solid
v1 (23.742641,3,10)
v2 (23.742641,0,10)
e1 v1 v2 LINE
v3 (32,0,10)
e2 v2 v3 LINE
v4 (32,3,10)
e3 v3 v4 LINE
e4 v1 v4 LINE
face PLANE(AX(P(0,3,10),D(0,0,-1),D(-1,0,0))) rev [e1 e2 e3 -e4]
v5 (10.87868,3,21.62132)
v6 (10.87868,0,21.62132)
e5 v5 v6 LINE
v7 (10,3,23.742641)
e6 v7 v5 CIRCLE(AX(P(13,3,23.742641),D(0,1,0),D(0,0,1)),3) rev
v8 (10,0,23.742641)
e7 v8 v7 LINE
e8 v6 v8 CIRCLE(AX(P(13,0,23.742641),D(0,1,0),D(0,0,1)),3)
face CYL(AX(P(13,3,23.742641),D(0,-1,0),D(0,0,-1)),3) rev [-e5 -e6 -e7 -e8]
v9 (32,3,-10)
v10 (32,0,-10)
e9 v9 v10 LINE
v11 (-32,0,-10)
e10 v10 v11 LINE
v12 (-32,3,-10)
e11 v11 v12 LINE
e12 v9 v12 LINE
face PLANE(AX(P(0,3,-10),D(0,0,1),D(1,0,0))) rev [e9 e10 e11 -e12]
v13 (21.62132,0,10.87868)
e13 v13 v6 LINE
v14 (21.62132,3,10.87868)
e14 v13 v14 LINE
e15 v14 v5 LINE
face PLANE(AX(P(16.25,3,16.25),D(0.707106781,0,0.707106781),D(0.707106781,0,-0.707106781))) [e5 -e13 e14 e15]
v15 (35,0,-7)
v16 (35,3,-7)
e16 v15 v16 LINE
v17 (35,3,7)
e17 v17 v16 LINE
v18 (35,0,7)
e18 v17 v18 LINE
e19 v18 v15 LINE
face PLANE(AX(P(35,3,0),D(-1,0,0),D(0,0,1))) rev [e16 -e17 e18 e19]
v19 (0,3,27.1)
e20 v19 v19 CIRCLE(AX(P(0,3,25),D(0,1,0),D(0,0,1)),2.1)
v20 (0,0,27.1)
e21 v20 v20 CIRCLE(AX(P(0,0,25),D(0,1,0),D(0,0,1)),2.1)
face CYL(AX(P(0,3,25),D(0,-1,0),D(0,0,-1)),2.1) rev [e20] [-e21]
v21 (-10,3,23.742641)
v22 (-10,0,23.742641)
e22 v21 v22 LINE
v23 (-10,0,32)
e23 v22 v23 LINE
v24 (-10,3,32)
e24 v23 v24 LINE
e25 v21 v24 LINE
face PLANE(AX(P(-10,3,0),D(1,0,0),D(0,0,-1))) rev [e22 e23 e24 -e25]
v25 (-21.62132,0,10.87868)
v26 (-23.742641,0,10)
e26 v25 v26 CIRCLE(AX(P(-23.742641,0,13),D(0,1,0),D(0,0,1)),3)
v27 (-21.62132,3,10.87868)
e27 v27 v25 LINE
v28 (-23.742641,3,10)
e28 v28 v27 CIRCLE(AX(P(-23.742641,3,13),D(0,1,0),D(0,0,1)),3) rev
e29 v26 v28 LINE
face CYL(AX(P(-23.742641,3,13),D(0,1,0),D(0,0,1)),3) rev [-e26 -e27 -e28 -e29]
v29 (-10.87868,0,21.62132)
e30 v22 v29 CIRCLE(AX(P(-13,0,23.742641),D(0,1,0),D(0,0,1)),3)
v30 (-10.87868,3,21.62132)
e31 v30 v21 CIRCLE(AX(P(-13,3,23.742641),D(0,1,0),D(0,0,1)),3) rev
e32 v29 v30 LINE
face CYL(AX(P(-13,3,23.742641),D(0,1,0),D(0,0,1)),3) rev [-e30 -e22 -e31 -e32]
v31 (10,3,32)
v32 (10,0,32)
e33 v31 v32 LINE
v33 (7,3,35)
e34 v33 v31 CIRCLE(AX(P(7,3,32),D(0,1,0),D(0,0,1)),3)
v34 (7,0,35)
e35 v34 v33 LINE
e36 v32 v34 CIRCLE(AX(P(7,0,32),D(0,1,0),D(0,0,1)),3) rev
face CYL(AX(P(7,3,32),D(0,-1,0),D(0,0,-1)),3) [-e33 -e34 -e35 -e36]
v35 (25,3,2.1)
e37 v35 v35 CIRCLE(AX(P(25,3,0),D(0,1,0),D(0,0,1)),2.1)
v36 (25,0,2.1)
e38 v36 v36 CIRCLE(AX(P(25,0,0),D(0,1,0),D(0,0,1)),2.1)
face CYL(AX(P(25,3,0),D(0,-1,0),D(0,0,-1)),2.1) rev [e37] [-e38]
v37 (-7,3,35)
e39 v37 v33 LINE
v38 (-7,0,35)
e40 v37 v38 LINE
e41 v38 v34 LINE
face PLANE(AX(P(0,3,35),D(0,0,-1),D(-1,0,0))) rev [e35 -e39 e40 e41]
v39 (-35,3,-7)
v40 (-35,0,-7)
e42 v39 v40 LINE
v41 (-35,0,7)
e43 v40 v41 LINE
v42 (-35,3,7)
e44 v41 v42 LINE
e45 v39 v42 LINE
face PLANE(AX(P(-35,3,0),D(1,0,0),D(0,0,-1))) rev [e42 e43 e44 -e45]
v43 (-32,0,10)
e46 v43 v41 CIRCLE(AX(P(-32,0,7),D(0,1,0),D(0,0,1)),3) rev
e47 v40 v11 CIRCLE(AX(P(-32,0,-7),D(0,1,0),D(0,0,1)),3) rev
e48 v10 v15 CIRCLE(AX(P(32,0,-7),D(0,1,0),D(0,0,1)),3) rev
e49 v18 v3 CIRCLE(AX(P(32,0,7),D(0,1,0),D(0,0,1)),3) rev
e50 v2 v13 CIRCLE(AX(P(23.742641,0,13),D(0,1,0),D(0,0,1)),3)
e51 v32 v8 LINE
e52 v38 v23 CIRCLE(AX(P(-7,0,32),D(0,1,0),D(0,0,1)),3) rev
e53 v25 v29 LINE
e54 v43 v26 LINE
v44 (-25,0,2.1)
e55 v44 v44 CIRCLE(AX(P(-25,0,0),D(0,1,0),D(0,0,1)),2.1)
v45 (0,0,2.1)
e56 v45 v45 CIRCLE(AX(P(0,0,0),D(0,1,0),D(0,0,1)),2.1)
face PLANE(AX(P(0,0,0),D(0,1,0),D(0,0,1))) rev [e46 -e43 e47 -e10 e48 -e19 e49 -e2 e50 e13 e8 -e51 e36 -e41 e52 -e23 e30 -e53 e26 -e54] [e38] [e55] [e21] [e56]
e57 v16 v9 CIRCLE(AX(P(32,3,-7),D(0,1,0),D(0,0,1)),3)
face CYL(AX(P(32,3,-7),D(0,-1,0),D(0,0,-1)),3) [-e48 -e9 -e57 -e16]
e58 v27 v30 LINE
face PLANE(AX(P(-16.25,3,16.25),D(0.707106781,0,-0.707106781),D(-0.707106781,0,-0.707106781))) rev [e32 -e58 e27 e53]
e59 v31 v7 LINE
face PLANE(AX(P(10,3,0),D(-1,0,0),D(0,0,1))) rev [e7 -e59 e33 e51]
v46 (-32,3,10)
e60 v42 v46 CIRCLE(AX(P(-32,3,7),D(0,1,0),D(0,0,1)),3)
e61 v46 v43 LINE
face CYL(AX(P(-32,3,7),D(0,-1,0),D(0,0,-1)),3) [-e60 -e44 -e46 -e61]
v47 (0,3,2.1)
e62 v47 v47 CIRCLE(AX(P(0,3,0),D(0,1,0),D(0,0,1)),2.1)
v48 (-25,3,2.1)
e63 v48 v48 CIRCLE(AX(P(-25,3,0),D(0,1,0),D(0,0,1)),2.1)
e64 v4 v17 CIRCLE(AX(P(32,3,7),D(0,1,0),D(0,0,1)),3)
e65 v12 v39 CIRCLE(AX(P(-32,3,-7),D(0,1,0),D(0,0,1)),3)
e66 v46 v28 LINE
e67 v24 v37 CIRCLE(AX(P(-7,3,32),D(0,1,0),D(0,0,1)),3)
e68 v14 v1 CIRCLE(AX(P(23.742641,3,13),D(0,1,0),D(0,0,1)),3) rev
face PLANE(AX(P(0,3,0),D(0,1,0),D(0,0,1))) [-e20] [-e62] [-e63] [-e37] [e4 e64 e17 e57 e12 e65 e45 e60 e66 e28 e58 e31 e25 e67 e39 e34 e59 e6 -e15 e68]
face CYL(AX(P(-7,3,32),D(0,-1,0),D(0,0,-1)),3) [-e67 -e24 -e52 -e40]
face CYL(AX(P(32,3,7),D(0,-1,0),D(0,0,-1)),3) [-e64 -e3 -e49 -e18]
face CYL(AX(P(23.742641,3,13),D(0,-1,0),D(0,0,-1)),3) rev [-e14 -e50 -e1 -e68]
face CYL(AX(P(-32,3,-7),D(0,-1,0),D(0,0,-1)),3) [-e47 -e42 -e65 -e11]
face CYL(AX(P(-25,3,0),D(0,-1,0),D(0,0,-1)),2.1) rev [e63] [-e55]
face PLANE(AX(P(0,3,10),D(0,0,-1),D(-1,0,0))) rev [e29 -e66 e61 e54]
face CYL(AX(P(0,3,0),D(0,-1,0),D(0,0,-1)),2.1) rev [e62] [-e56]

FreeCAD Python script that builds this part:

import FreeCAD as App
import Part
import Sketcher
Q = App.Units.Quantity


def edges_at(feature, points):
    """Names of the edges that pass closest to the given points."""
    edges = feature.Shape.Edges
    near = lambda p: min(range(len(edges)), key=lambda i: edges[i].distToShape(Part.Vertex(*p))[0])
    return sorted({f"Edge{near(p) + 1}" for p in points})

doc = App.newDocument("Part")
params = doc.addObject("Spreadsheet::Sheet", "Params")
for row, (alias, value) in enumerate([
    ("sketch1_diameter", "4.2 mm"),
    ("sketch1_width", "70 mm"),
    ("sketch1_width2", "20 mm"),
    ("sketch1_width3", "12.5 mm"),
    ("pad1_length", "3 mm"),
    ("fillet_radius", "3 mm"),
], start=1):
    params.set(f"A{row}", alias)
    params.set(f"B{row}", "=" + value)
    params.setAlias(f"B{row}", alias)

body = doc.addObject("PartDesign::Body", "Body")

sketch1 = body.newObject("Sketcher::SketchObject", "Sketch")
sketch1.AttachmentSupport = (doc.getObject("XZ_Plane"), [""])
sketch1.MapMode = "FlatFace"
sketch1.addGeometry(Part.LineSegment(App.Vector(35, 10, 0), App.Vector(35, -10, 0)), False)
sketch1.addGeometry(Part.LineSegment(App.Vector(35, -10, 0), App.Vector(-35, -10, 0)), False)
sketch1.addGeometry(Part.LineSegment(App.Vector(-35, -10, 0), App.Vector(-35, 10, 0)), False)
sketch1.addGeometry(Part.LineSegment(App.Vector(-35, 10, 0), App.Vector(-22.5, 10, 0)), False)
sketch1.addGeometry(Part.LineSegment(App.Vector(-22.5, 10, 0), App.Vector(-10, 22.5, 0)), False)
sketch1.addGeometry(Part.LineSegment(App.Vector(-10, 22.5, 0), App.Vector(-10, 35, 0)), False)
sketch1.addGeometry(Part.LineSegment(App.Vector(-10, 35, 0), App.Vector(10, 35, 0)), False)
sketch1.addGeometry(Part.LineSegment(App.Vector(10, 35, 0), App.Vector(10, 22.5, 0)), False)
sketch1.addGeometry(Part.LineSegment(App.Vector(10, 22.5, 0), App.Vector(22.5, 10, 0)), False)
sketch1.addGeometry(Part.LineSegment(App.Vector(22.5, 10, 0), App.Vector(35, 10, 0)), False)
sketch1.addGeometry(Part.Circle(App.Vector(0, 25, 0), App.Vector(0, 0, 1), 2.1), False)
sketch1.addGeometry(Part.Circle(App.Vector(-25, 0, 0), App.Vector(0, 0, 1), 2.1), False)
sketch1.addGeometry(Part.Circle(App.Vector(0, 0, 0), App.Vector(0, 0, 1), 2.1), False)
sketch1.addGeometry(Part.Circle(App.Vector(25, 0, 0), App.Vector(0, 0, 1), 2.1), False)
sketch1.addConstraint(Sketcher.Constraint("Coincident", 0, 2, 1, 1))
sketch1.addConstraint(Sketcher.Constraint("Coincident", 1, 2, 2, 1))
sketch1.addConstraint(Sketcher.Constraint("Coincident", 2, 2, 3, 1))
sketch1.addConstraint(Sketcher.Constraint("Coincident", 3, 2, 4, 1))
sketch1.addConstraint(Sketcher.Constraint("Coincident", 4, 2, 5, 1))
sketch1.addConstraint(Sketcher.Constraint("Coincident", 5, 2, 6, 1))
sketch1.addConstraint(Sketcher.Constraint("Coincident", 6, 2, 7, 1))
sketch1.addConstraint(Sketcher.Constraint("Coincident", 7, 2, 8, 1))
sketch1.addConstraint(Sketcher.Constraint("Coincident", 8, 2, 9, 1))
sketch1.addConstraint(Sketcher.Constraint("Coincident", 9, 2, 0, 1))
sketch1.addConstraint(Sketcher.Constraint("Vertical", 0))
sketch1.addConstraint(Sketcher.Constraint("Horizontal", 1))
sketch1.addConstraint(Sketcher.Constraint("Vertical", 2))
sketch1.addConstraint(Sketcher.Constraint("Horizontal", 3))
sketch1.addConstraint(Sketcher.Constraint("Vertical", 5))
sketch1.addConstraint(Sketcher.Constraint("Horizontal", 6))
sketch1.addConstraint(Sketcher.Constraint("Vertical", 7))
sketch1.addConstraint(Sketcher.Constraint("Horizontal", 9))
sketch1.addConstraint(Sketcher.Constraint("Coincident", 12, 3, -1, 1))
sketch1.addConstraint(Sketcher.Constraint("Equal", 10, 11))
sketch1.addConstraint(Sketcher.Constraint("Equal", 11, 12))
sketch1.addConstraint(Sketcher.Constraint("Equal", 12, 13))
sketch1.addConstraint(Sketcher.Constraint("Symmetric", 11, 3, 13, 3, -1, 1))
sketch1.addConstraint(Sketcher.Constraint("Symmetric", 0, 2, 2, 2, -1, 1))
sketch1.addConstraint(Sketcher.Constraint("Symmetric", 4, 2, 7, 2, -2))
sketch1.addConstraint(Sketcher.Constraint("Symmetric", 3, 2, 8, 2, -2))
sketch1.addConstraint(Sketcher.Constraint("PointOnObject", 10, 3, -2))
sketch1.addConstraint(Sketcher.Constraint("PointOnObject", 11, 3, -1))
sketch1.addConstraint(Sketcher.Constraint("Perpendicular", 4, 8))
sketch1.addConstraint(Sketcher.Constraint("Equal", 6, 0))
sketch1.addConstraint(Sketcher.Constraint("Equal", 9, 5))
sketch1.addConstraint(Sketcher.Constraint("Diameter", 10, Q("4.2 mm")))
sketch1.addConstraint(Sketcher.Constraint("DistanceX", 1, 2, 1, 1, Q("70 mm")))
sketch1.addConstraint(Sketcher.Constraint("DistanceX", 6, 1, 6, 2, Q("20 mm")))
sketch1.addConstraint(Sketcher.Constraint("DistanceX", 3, 1, 3, 2, Q("12.5 mm")))
sketch1.addConstraint(Sketcher.Constraint("DistanceY", -1, 1, 10, 3, Q("25 mm")))
sketch1.addConstraint(Sketcher.Constraint("DistanceX", 11, 3, -1, 1, Q("25 mm")))
sketch1.setExpression("Constraints[31]", "Params.sketch1_diameter")
sketch1.setExpression("Constraints[32]", "Params.sketch1_width")
sketch1.setExpression("Constraints[33]", "Params.sketch1_width2")
sketch1.setExpression("Constraints[34]", "Params.sketch1_width3")
pad1 = body.newObject("PartDesign::Pad", "Pad")
pad1.Profile = sketch1
pad1.setExpression("Length", "Params.pad1_length")
pad1.Reversed = True
doc.recompute()

fillet = body.newObject("PartDesign::Fillet", "Fillet")
fillet.Base = (pad1, edges_at(pad1, [
    (10, 1.5, 22.5),
    (10, 1.5, 35),
    (-10, 1.5, 35),
    (-10, 1.5, 22.5),
    (-22.5, 1.5, 10),
    (-35, 1.5, 10),
    (-35, 1.5, -10),
    (35, 1.5, -10),
    (35, 1.5, 10),
    (22.5, 1.5, 10),
]))
fillet.setExpression("Radius", "Params.fillet_radius")

doc.recompute()
